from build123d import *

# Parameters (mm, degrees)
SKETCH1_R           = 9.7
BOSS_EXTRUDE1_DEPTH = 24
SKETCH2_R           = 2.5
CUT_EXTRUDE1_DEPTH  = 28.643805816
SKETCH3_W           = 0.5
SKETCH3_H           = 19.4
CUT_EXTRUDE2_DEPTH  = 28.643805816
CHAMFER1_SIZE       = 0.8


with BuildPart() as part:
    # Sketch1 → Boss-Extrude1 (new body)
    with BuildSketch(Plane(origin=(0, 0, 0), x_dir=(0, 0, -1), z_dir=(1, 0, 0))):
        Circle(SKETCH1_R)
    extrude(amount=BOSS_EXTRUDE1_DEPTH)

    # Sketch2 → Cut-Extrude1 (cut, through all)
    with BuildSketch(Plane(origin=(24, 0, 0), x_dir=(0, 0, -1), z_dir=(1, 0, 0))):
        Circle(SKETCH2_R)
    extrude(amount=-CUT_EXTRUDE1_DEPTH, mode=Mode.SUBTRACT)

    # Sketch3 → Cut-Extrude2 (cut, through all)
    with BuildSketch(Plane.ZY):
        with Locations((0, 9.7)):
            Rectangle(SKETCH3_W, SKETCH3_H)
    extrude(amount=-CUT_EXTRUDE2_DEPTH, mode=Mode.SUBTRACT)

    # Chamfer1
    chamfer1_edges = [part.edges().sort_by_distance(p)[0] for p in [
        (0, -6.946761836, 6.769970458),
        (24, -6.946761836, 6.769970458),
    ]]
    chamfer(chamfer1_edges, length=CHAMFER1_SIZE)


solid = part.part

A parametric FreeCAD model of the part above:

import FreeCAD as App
import Part
import Sketcher


def edges_at(feature, points):
    """Names of the edges that pass closest to the given points."""
    edges = feature.Shape.Edges
    near = lambda p: min(range(len(edges)), key=lambda i: edges[i].distToShape(Part.Vertex(*p))[0])
    return sorted({f"Edge{near(p) + 1}" for p in points})


def add_polygon(sketch, points):
    """Adds a closed chain of lines whose ends are joined by coincident constraints."""
    first, n = sketch.GeometryCount, len(points)
    for a, b in zip(points, points[1:] + points[:1]):
        sketch.addGeometry(Part.LineSegment(App.Vector(*a, 0), App.Vector(*b, 0)), False)
    for i in range(n):
        sketch.addConstraint(Sketcher.Constraint("Coincident", first + i, 2, first + (i + 1) % n, 1))

doc = App.newDocument("Part")
params = doc.addObject("Spreadsheet::Sheet", "Params")
for row, (alias, value) in enumerate([
    ("sketch1_diameter", "19.4 mm"),
    ("pad1_length", "24 mm"),
    ("sketch2_diameter", "5 mm"),
    ("sketch3_width", "19.4 mm"),
    ("sketch3_height", "0.5 mm"),
    ("chamfer_size", "0.8 mm"),
], start=1):
    params.set(f"A{row}", alias)
    params.set(f"B{row}", "=" + value)
    params.setAlias(f"B{row}", alias)

body = doc.addObject("PartDesign::Body", "Body")

sketch1 = doc.addObject("Sketcher::SketchObject", "Sketch")
body.addObject(sketch1)
sketch1.AttachmentSupport = (doc.YZ_Plane, [""])
sketch1.MapMode = "FlatFace"
sketch1.addGeometry(Part.Circle(App.Vector(0, 0, 0), App.Vector(0, 0, 1), 10), False)
sketch1.addConstraint([
    Sketcher.Constraint("Coincident", 0, 3, -1, 1),
    Sketcher.Constraint("Diameter", 0, 19.4),
])
sketch1.setExpression("Constraints[1]", "Params.sketch1_diameter")
pad1 = doc.addObject("PartDesign::Pad", "Pad")
body.addObject(pad1)
pad1.Profile = sketch1
pad1.setExpression("Length", "Params.pad1_length")

sketch2 = doc.addObject("Sketcher::SketchObject", "Sketch001")
body.addObject(sketch2)
sketch2.AttachmentSupport = (doc.YZ_Plane, [""])
sketch2.MapMode = "FlatFace"
sketch2.AttachmentOffset = App.Placement(App.Vector(0, 0, 24), App.Rotation())
sketch2.addGeometry(Part.Circle(App.Vector(0, 0, 0), App.Vector(0, 0, 1), 2.5), False)
sketch2.addConstraint([
    Sketcher.Constraint("Coincident", 0, 3, -1, 1),
    Sketcher.Constraint("Diameter", 0, 5.0),
])
sketch2.setExpression("Constraints[1]", "Params.sketch2_diameter")
pocket1 = doc.addObject("PartDesign::Pocket", "Pocket")
body.addObject(pocket1)
pocket1.Profile = sketch2
pocket1.Type = "ThroughAll"

sketch3 = doc.addObject("Sketcher::SketchObject", "Sketch002")
body.addObject(sketch3)
sketch3.AttachmentSupport = (doc.YZ_Plane, [""])
sketch3.MapMode = "FlatFace"
add_polygon(sketch3, [(19.4, -0.2), (0, -0.2), (0, 0.2), (19.4, 0.2)])
sketch3.addConstraint([
    Sketcher.Constraint("Horizontal", 0),
    Sketcher.Constraint("Vertical", 1),
    Sketcher.Constraint("Horizontal", 2),
    Sketcher.Constraint("Vertical", 3),
    Sketcher.Constraint("Symmetric", 0, 2, 1, 2, -1, 1),
    Sketcher.Constraint("DistanceX", 0, 2, 0, 1, 19.4),
    Sketcher.Constraint("DistanceY", 1, 1, 1, 2, 0.5),
])
sketch3.setExpression("Constraints[9]", "Params.sketch3_width")
sketch3.setExpression("Constraints[10]", "Params.sketch3_height")
pocket2 = doc.addObject("PartDesign::Pocket", "Pocket001")
body.addObject(pocket2)
pocket2.Profile = sketch3
pocket2.Type = "ThroughAll"
pocket2.Reversed = True
doc.recompute()

chamfer = doc.addObject("PartDesign::Chamfer", "Chamfer")
body.addObject(chamfer)
chamfer.Base = (pocket2, edges_at(pocket2, [(0, -6.947, 6.77), (24, -6.947, 6.77)]))
chamfer.setExpression("Size", "Params.chamfer_size")

doc.recompute()
